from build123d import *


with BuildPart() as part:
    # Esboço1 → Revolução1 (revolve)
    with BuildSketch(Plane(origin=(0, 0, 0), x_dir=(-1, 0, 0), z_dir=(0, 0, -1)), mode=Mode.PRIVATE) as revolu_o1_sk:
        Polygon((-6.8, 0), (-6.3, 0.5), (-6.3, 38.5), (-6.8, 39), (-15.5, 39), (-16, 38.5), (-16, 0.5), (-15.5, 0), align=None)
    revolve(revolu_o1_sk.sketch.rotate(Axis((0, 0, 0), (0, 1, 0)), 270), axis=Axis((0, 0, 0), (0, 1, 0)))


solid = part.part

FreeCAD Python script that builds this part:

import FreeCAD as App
import Part
import Sketcher
from FreeCAD import Vector
Q = App.Units.Quantity


def add_polygon(sketch, points):
    """Adds a closed chain of lines whose ends are joined by coincident constraints."""
    first, n = sketch.GeometryCount, len(points)
    for a, b in zip(points, points[1:] + points[:1]):
        sketch.addGeometry(Part.LineSegment(App.Vector(*a, 0), App.Vector(*b, 0)), False)
    for i in range(n):
        sketch.addConstraint(Sketcher.Constraint("Coincident", first + i, 2, first + (i + 1) % n, 1))

doc = App.newDocument("Part")
params = doc.addObject("Spreadsheet::Sheet", "Params")
for row, (alias, value) in enumerate([
    ("sketch1_height", "38 mm"),
    ("sketch1_width", "8.7 mm"),
    ("revolution_angle", "360 deg"),
], start=1):
    params.set(f"A{row}", alias)
    params.set(f"B{row}", "=" + value)
    params.setAlias(f"B{row}", alias)

body = doc.addObject("PartDesign::Body", "Body")

sketch1 = body.newObject("Sketcher::SketchObject", "Sketch")
sketch1.AttachmentSupport = (doc.getObject("XY_Plane"), [""])
sketch1.MapMode = "FlatFace"
add_polygon(sketch1, [(6.8, 0), (6.3, 0.5), (6.3, 38.5), (6.8, 39), (15.5, 39), (16, 38.5), (16, 0.5), (15.5, 0)])
sketch1.addConstraint([
    Sketcher.Constraint("Vertical", 1),
    Sketcher.Constraint("Horizontal", 3),
    Sketcher.Constraint("Vertical", 5),
    Sketcher.Constraint("Horizontal", 7),
    Sketcher.Constraint("PointOnObject", 6, 2, -1),
    Sketcher.Constraint("Perpendicular", 0, 2),
    Sketcher.Constraint("Perpendicular", 2, 4),
    Sketcher.Constraint("Perpendicular", 4, 6),
    Sketcher.Constraint("Horizontal", 1, 2, 4, 2),
    Sketcher.Constraint("Horizontal", 0, 2, 5, 2),
    Sketcher.Constraint("Vertical", 3, 2, 6, 2),
    Sketcher.Constraint("Vertical", 2, 2, 7, 2),
    Sketcher.Constraint("DistanceY", 1, 1, 1, 2, Q("38 mm")),
    Sketcher.Constraint("DistanceX", 3, 1, 3, 2, Q("8.7 mm")),
    Sketcher.Constraint("DistanceY", -1, 1, 2, 2, Q("39 mm")),
    Sketcher.Constraint("DistanceX", -1, 1, 4, 2, Q("16 mm")),
])
sketch1.setExpression("Constraints[20]", "Params.sketch1_height")
sketch1.setExpression("Constraints[21]", "Params.sketch1_width")
revolution = body.newObject("PartDesign::Revolution", "Revolution")
revolution.Profile = sketch1
revolution.ReferenceAxis = (sketch1, ["V_Axis"])
revolution.setExpression("Angle", "Params.revolution_angle")

doc.recompute()
